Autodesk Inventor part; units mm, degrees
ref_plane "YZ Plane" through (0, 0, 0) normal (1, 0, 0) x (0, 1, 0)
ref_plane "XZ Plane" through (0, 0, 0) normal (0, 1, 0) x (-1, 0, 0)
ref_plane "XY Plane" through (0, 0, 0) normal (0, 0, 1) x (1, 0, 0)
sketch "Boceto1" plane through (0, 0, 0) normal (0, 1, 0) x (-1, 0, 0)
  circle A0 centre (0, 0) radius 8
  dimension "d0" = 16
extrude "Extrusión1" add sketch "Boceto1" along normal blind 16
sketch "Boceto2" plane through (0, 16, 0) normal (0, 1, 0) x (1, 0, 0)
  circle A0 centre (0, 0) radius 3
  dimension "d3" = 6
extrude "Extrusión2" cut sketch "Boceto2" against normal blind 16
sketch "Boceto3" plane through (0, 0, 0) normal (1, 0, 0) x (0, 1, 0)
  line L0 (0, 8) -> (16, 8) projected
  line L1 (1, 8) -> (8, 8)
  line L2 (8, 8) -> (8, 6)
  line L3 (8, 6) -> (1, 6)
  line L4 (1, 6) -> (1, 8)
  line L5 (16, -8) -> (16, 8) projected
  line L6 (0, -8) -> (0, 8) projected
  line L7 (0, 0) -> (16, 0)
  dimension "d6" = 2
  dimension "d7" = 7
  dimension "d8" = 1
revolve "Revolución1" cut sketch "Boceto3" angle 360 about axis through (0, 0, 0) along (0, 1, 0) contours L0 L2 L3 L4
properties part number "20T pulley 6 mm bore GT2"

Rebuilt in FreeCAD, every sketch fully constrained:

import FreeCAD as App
import Part
import Sketcher


def add_polygon(sketch, points):
    """Adds a closed chain of lines whose ends are joined by coincident constraints."""
    first, n = sketch.GeometryCount, len(points)
    for a, b in zip(points, points[1:] + points[:1]):
        sketch.addGeometry(Part.LineSegment(App.Vector(*a, 0), App.Vector(*b, 0)), False)
    for i in range(n):
        sketch.addConstraint(Sketcher.Constraint("Coincident", first + i, 2, first + (i + 1) % n, 1))

doc = App.newDocument("Part")
body = doc.addObject("PartDesign::Body", "Body")

# Sketch on XZ plane
sketch1 = body.newObject("Sketcher::SketchObject", "Sketch")
sketch1.AttachmentSupport = (doc.getObject("XZ_Plane"), [""])
sketch1.MapMode = "FlatFace"
sketch1.addGeometry(Part.Circle(App.Vector(0, 0, 0), App.Vector(0, 0, 1), 8), False)
sketch1.addConstraint([
    Sketcher.Constraint("Coincident", 0, 3, -1, 1),
    Sketcher.Constraint("Diameter", 0, 16.0),
])
pad1 = body.newObject("PartDesign::Pad", "Pad")
pad1.Profile = sketch1
pad1.Length = 16
pad1.Reversed = True

# Sketch on XZ plane
sketch2 = body.newObject("Sketcher::SketchObject", "Sketch001")
sketch2.AttachmentSupport = (doc.getObject("XZ_Plane"), [""])
sketch2.MapMode = "FlatFace"
sketch2.AttachmentOffset = App.Placement(App.Vector(0, 0, -16), App.Rotation())
sketch2.addGeometry(Part.Circle(App.Vector(0, 0, 0), App.Vector(0, 0, 1), 3), False)
sketch2.addConstraint([
    Sketcher.Constraint("Coincident", 0, 3, -1, 1),
    Sketcher.Constraint("Diameter", 0, 6.0),
])
pocket1 = body.newObject("PartDesign::Pocket", "Pocket")
pocket1.Profile = sketch2
pocket1.Length = 16
pocket1.Reversed = True

# Sketch on YZ plane
sketch3 = body.newObject("Sketcher::SketchObject", "Sketch002")
sketch3.AttachmentSupport = (doc.getObject("YZ_Plane"), [""])
sketch3.MapMode = "FlatFace"
add_polygon(sketch3, [(8, 8), (1, 8), (1, 6), (8, 6)])  # lines 0-3
sketch3.addConstraint([
    Sketcher.Constraint("Horizontal", 0),
    Sketcher.Constraint("Vertical", 1),
    Sketcher.Constraint("Horizontal", 2),
    Sketcher.Constraint("Vertical", 3),
    Sketcher.Constraint("DistanceX", 0, 2, 0, 1, 7.0),
    Sketcher.Constraint("DistanceY", 1, 2, 1, 1, 2.0),
    Sketcher.Constraint("DistanceX", -1, 1, 0, 2, 1.0),
    Sketcher.Constraint("DistanceY", -1, 1, 0, 2, 8.0),
])
groove = body.newObject("PartDesign::Groove", "Groove")
groove.Profile = sketch3
groove.ReferenceAxis = (sketch3, ["H_Axis"])
groove.Angle = 360

doc.recompute()
